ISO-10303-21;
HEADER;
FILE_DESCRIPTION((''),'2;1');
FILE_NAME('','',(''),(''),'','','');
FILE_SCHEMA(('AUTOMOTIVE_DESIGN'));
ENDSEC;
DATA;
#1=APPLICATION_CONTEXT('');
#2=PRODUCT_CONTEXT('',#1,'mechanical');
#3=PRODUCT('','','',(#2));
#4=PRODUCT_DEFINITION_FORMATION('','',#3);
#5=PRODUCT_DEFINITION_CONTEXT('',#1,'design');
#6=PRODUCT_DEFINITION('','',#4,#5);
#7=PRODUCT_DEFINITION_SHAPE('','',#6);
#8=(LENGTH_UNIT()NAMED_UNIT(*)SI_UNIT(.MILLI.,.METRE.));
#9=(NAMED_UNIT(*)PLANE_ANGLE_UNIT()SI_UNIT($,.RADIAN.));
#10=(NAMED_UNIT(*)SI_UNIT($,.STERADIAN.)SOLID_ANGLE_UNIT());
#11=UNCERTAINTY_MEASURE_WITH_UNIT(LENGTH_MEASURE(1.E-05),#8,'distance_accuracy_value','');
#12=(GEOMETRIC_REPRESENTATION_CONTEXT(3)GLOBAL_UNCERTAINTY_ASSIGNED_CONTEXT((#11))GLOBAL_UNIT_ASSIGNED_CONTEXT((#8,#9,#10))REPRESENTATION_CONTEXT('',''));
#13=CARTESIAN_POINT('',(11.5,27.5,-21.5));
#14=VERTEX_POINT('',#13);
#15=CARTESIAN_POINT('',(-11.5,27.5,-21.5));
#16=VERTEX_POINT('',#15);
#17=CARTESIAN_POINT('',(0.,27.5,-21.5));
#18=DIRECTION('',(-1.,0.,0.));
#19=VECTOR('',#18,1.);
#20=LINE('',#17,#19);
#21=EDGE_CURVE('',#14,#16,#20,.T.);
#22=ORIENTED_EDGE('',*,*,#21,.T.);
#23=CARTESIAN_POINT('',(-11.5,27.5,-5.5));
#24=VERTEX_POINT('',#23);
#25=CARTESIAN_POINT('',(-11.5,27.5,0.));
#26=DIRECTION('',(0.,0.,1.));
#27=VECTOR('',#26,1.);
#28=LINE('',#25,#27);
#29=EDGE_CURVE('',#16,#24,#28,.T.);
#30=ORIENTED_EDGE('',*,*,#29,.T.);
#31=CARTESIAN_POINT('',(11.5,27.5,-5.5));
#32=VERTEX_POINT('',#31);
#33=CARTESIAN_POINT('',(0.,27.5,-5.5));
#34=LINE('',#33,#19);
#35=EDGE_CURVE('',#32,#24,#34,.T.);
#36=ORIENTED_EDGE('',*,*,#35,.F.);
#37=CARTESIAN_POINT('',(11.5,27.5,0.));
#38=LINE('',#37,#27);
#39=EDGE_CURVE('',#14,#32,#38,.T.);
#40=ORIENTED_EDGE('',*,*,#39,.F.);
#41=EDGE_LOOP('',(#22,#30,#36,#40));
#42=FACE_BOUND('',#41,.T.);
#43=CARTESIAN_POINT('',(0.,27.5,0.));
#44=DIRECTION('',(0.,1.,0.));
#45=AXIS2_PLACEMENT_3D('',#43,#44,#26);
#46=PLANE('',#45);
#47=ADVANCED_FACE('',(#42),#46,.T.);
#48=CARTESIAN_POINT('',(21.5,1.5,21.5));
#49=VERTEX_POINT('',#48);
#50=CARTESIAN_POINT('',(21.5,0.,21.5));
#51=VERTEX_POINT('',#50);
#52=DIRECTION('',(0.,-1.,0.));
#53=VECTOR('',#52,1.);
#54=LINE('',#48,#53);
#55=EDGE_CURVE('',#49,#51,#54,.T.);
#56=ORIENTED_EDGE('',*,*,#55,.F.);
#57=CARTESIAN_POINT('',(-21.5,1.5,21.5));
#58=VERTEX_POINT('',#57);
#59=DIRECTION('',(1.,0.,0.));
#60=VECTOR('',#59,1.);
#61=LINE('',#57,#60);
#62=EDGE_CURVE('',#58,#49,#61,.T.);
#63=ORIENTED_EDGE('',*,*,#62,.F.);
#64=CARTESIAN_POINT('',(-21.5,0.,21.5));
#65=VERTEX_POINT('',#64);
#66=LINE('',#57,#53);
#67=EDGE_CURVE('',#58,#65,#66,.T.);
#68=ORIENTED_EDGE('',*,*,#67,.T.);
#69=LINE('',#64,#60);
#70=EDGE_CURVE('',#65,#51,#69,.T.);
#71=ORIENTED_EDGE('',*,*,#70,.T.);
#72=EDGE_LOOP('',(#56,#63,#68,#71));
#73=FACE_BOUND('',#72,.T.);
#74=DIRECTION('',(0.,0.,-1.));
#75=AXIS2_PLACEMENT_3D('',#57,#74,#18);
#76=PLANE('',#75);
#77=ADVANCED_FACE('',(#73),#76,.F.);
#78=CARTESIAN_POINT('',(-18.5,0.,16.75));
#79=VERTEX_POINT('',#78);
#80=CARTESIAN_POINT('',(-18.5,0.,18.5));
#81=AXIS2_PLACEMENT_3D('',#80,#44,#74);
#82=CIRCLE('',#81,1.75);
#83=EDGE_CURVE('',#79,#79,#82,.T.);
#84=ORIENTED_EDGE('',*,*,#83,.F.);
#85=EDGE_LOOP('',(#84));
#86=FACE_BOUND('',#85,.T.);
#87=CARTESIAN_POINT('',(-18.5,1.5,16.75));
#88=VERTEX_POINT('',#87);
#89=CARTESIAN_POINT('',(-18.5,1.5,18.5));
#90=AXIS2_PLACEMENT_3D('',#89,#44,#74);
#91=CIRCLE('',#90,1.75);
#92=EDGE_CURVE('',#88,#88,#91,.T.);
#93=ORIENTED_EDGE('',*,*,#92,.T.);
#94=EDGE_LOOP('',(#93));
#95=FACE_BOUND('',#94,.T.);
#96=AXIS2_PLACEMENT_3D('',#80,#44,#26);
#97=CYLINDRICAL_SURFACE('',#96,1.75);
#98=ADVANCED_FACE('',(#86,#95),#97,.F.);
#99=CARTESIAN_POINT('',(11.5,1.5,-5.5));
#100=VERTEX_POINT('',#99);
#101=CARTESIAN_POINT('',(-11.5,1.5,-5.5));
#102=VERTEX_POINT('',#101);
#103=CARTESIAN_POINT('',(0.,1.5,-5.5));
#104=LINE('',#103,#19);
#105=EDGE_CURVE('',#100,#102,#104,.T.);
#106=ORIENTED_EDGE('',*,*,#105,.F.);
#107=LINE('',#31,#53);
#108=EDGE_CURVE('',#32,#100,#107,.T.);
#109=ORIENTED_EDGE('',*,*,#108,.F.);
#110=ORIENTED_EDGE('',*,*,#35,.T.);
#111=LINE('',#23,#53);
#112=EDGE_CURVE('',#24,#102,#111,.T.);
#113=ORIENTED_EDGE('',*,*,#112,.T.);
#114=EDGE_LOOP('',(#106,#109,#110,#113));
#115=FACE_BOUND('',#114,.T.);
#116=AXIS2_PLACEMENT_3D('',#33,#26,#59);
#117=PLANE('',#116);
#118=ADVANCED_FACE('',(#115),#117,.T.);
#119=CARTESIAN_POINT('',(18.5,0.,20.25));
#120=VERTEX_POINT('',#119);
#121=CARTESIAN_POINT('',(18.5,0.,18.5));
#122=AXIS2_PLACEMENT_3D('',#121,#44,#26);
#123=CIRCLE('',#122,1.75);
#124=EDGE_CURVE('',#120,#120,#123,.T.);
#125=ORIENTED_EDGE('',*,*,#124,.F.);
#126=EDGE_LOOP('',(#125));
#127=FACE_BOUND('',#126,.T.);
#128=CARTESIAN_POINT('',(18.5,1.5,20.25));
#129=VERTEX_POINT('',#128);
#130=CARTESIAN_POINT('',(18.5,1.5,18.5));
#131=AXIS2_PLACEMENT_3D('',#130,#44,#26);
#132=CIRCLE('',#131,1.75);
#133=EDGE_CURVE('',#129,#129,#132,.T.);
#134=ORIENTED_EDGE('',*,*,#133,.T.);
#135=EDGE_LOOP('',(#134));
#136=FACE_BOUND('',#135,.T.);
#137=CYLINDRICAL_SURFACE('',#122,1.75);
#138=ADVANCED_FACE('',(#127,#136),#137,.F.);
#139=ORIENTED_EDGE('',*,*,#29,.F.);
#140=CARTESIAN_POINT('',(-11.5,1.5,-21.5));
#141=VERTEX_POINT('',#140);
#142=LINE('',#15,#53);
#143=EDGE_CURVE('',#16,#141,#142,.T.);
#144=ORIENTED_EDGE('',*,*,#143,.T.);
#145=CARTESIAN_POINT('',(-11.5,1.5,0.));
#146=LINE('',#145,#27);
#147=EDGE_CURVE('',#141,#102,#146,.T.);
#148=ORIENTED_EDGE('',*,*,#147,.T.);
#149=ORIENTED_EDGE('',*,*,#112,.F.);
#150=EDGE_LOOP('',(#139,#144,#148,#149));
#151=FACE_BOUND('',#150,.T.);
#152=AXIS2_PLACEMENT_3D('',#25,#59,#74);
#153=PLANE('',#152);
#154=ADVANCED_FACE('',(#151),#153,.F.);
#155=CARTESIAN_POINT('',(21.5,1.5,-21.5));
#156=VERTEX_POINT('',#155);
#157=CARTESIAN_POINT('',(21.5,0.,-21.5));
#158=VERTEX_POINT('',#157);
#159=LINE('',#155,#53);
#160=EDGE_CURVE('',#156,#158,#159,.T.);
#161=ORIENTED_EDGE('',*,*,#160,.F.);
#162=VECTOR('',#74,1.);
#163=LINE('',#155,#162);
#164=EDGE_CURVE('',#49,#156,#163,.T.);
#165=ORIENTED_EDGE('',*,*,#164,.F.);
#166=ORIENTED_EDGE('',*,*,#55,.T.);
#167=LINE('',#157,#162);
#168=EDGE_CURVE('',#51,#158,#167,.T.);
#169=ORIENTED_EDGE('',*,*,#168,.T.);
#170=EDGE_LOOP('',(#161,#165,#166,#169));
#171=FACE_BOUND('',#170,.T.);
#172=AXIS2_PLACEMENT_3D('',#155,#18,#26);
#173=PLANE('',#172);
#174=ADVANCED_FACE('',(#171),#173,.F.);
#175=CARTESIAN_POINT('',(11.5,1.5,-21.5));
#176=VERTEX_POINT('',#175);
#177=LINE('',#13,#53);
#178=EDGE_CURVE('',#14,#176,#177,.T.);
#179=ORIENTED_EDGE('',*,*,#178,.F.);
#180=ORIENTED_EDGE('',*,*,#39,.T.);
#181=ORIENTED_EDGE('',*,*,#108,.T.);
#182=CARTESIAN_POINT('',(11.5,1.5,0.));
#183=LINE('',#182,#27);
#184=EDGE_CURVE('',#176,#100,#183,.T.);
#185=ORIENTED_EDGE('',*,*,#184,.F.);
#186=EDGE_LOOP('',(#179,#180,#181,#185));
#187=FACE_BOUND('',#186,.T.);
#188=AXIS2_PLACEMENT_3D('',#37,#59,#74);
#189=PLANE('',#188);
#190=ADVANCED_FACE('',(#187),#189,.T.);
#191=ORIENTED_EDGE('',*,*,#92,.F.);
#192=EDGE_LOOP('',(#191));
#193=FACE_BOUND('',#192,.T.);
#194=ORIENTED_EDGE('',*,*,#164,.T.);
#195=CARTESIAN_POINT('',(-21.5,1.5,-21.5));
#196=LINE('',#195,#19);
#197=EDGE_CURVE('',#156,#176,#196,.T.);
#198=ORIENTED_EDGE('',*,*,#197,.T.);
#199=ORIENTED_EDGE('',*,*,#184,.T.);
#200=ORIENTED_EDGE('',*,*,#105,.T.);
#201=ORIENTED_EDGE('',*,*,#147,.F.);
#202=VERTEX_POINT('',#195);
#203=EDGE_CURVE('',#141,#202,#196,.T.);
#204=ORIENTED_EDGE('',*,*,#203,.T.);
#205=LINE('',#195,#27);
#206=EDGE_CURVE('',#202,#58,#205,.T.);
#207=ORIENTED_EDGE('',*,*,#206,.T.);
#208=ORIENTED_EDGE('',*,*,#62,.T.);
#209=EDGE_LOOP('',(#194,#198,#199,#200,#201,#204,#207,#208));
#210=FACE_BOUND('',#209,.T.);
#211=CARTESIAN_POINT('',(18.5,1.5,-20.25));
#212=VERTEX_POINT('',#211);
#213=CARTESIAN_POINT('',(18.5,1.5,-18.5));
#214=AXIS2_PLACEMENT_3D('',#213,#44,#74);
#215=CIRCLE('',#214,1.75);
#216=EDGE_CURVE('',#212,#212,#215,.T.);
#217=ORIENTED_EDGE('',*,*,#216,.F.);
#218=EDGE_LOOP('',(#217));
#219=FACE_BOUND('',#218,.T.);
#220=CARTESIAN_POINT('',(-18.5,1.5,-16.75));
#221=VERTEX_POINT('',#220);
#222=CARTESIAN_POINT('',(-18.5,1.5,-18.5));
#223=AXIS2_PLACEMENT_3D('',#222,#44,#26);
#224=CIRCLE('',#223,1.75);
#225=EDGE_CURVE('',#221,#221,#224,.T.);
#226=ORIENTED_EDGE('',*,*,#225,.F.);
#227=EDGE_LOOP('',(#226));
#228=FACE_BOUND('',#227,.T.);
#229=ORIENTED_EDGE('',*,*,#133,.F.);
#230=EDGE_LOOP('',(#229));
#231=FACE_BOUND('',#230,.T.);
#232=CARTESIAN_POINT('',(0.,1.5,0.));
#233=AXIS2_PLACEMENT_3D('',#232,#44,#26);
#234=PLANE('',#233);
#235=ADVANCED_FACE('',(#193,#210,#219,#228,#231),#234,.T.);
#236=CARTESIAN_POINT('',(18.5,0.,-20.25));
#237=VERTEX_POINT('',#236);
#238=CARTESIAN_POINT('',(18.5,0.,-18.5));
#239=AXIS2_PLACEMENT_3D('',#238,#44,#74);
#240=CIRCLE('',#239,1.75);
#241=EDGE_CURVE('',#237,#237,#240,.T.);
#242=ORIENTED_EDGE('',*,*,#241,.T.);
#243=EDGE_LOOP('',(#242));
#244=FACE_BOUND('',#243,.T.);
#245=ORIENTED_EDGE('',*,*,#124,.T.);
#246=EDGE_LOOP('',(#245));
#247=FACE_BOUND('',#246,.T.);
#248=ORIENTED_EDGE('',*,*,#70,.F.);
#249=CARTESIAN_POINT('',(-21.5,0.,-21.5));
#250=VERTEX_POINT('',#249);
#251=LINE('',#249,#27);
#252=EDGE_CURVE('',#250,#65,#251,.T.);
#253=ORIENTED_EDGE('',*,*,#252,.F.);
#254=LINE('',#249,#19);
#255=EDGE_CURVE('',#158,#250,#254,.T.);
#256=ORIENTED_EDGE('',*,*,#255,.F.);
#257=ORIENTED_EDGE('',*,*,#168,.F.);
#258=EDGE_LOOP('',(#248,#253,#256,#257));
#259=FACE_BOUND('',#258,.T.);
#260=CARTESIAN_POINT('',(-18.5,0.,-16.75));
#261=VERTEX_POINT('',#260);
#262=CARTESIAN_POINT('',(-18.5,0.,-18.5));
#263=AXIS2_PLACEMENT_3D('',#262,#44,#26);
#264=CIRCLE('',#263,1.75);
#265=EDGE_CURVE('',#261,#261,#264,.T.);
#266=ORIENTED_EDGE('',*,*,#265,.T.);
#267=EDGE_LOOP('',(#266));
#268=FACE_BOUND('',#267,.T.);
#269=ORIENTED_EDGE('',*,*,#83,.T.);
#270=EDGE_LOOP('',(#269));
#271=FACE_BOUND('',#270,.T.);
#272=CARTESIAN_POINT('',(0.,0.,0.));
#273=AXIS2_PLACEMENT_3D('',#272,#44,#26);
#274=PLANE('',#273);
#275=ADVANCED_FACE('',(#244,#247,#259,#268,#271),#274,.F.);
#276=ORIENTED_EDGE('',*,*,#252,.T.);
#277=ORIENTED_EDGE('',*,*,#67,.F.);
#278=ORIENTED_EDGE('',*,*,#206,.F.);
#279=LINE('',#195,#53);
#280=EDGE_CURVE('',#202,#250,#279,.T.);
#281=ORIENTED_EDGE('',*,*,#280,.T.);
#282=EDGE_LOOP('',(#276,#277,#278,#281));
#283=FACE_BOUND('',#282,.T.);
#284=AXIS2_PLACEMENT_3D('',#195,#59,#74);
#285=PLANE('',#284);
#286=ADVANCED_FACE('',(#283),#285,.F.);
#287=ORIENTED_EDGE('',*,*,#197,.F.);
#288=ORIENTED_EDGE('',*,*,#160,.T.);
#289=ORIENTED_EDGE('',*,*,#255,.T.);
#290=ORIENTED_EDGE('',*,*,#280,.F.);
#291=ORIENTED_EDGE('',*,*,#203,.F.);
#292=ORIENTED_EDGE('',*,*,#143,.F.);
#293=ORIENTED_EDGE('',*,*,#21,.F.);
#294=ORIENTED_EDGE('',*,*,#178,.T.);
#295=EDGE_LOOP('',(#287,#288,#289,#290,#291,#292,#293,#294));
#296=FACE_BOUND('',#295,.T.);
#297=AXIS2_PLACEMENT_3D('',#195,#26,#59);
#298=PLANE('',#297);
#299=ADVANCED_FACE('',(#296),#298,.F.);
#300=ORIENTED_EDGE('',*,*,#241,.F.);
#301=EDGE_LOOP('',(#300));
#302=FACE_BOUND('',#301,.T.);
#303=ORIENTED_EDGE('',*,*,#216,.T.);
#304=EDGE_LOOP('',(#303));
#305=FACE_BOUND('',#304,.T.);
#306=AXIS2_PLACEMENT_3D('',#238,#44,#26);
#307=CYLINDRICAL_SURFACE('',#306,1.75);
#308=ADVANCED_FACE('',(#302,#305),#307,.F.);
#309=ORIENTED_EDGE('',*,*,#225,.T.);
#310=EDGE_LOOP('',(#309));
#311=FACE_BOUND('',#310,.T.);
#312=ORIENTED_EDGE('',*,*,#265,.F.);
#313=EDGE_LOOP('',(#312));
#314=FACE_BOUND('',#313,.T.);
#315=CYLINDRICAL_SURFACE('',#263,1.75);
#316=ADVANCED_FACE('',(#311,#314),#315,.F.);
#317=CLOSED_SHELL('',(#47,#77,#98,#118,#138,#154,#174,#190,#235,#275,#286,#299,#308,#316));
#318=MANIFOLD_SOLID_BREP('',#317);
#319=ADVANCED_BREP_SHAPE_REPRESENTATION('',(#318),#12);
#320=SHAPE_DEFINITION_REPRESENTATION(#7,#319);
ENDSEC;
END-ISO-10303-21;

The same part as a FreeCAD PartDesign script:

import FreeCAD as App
import Part
import Sketcher
Q = App.Units.Quantity

doc = App.newDocument("Part")
body = doc.addObject("PartDesign::Body", "Body")

# Sketch on XZ plane
sketch1 = doc.addObject("Sketcher::SketchObject", "Sketch")
body.addObject(sketch1)
sketch1.AttachmentSupport = (doc.XZ_Plane, [""])
sketch1.MapMode = "FlatFace"
sketch1.addGeometry(Part.LineSegment(App.Vector(-22, -22, 0), App.Vector(-22, 22, 0)), False)
sketch1.addGeometry(Part.LineSegment(App.Vector(-22, 22, 0), App.Vector(22, 22, 0)), False)
sketch1.addGeometry(Part.LineSegment(App.Vector(22, 22, 0), App.Vector(22, -22, 0)), False)
sketch1.addGeometry(Part.LineSegment(App.Vector(22, -22, 0), App.Vector(-22, -22, 0)), False)
sketch1.addConstraint(Sketcher.Constraint("Coincident", 0, 2, 1, 1))
sketch1.addConstraint(Sketcher.Constraint("Coincident", 1, 2, 2, 1))
sketch1.addConstraint(Sketcher.Constraint("Coincident", 2, 2, 3, 1))
sketch1.addConstraint(Sketcher.Constraint("Coincident", 3, 2, 0, 1))
sketch1.addConstraint(Sketcher.Constraint("Vertical", 0))
sketch1.addConstraint(Sketcher.Constraint("Horizontal", 1))
sketch1.addConstraint(Sketcher.Constraint("Vertical", 2))
sketch1.addConstraint(Sketcher.Constraint("Horizontal", 3))
sketch1.addConstraint(Sketcher.Constraint("Symmetric", 0, 2, 2, 2, -1, 1))
sketch1.addConstraint(Sketcher.Constraint("Equal", 3, 0))
sketch1.addConstraint(Sketcher.Constraint("DistanceX", 1, 1, 1, 2, Q("43 mm")))
pad1 = doc.addObject("PartDesign::Pad", "Pad")
body.addObject(pad1)
pad1.Profile = sketch1
pad1.Length = 1.5
pad1.Reversed = True

# Sketch on XZ plane
sketch2 = doc.addObject("Sketcher::SketchObject", "Sketch001")
body.addObject(sketch2)
sketch2.AttachmentSupport = (doc.XZ_Plane, [""])
sketch2.MapMode = "FlatFace"
sketch2.AttachmentOffset = App.Placement(App.Vector(0, 0, -1.5), App.Rotation())
sketch2.addGeometry(Part.Circle(App.Vector(-18.5, -18.5, 0), App.Vector(0, 0, 1), 1.8), False)
sketch2.addGeometry(Part.Circle(App.Vector(18.5, -18.5, 0), App.Vector(0, 0, 1), 1.8), False)
sketch2.addGeometry(Part.Circle(App.Vector(-18.5, 18.5, 0), App.Vector(0, 0, 1), 1.8), False)
sketch2.addGeometry(Part.Circle(App.Vector(18.5, 18.5, 0), App.Vector(0, 0, 1), 1.8), False)
sketch2.addConstraint(Sketcher.Constraint("Equal", 0, 1))
sketch2.addConstraint(Sketcher.Constraint("Equal", 1, 2))
sketch2.addConstraint(Sketcher.Constraint("Equal", 2, 3))
sketch2.addConstraint(Sketcher.Constraint("Symmetric", 1, 3, 2, 3, -1, 1))
sketch2.addConstraint(Sketcher.Constraint("Symmetric", 0, 3, 3, 3, -1, 1))
sketch2.addConstraint(Sketcher.Constraint("Symmetric", 0, 3, 1, 3, -2))
sketch2.addConstraint(Sketcher.Constraint("Diameter", 0, Q("3.5 mm")))
sketch2.addConstraint(Sketcher.Constraint("DistanceX", 0, 3, 1, 3, Q("37 mm")))
sketch2.addConstraint(Sketcher.Constraint("DistanceY", 0, 3, 2, 3, Q("37 mm")))
pocket1 = doc.addObject("PartDesign::Pocket", "Pocket")
body.addObject(pocket1)
pocket1.Profile = sketch2
pocket1.Length = 1.5
pocket1.Reversed = True

# Sketch on XZ plane
sketch3 = doc.addObject("Sketcher::SketchObject", "Sketch002")
body.addObject(sketch3)
sketch3.AttachmentSupport = (doc.XZ_Plane, [""])
sketch3.MapMode = "FlatFace"
sketch3.AttachmentOffset = App.Placement(App.Vector(0, 0, -1.5), App.Rotation())
sketch3.addGeometry(Part.LineSegment(App.Vector(-12, -22, 0), App.Vector(-12, -6, 0)), False)
sketch3.addGeometry(Part.LineSegment(App.Vector(-12, -6, 0), App.Vector(12, -6, 0)), False)
sketch3.addGeometry(Part.LineSegment(App.Vector(12, -6, 0), App.Vector(12, -22, 0)), False)
sketch3.addGeometry(Part.LineSegment(App.Vector(12, -22, 0), App.Vector(-12, -22, 0)), False)
sketch3.addConstraint(Sketcher.Constraint("Coincident", 0, 2, 1, 1))
sketch3.addConstraint(Sketcher.Constraint("Coincident", 1, 2, 2, 1))
sketch3.addConstraint(Sketcher.Constraint("Coincident", 2, 2, 3, 1))
sketch3.addConstraint(Sketcher.Constraint("Coincident", 3, 2, 0, 1))
sketch3.addConstraint(Sketcher.Constraint("Vertical", 0))
sketch3.addConstraint(Sketcher.Constraint("Horizontal", 1))
sketch3.addConstraint(Sketcher.Constraint("Vertical", 2))
sketch3.addConstraint(Sketcher.Constraint("Horizontal", 3))
sketch3.addConstraint(Sketcher.Constraint("DistanceX", 1, 1, 1, 2, Q("23 mm")))
sketch3.addConstraint(Sketcher.Constraint("DistanceY", 0, 1, 0, 2, Q("16 mm")))
sketch3.addConstraint(Sketcher.Constraint("DistanceX", 0, 2, -1, 1, Q("11.5 mm")))
sketch3.addConstraint(Sketcher.Constraint("DistanceY", 0, 2, -1, 1, Q("5.5 mm")))
pad2 = doc.addObject("PartDesign::Pad", "Pad001")
body.addObject(pad2)
pad2.Profile = sketch3
pad2.Length = 26
pad2.Reversed = True

doc.recompute()
